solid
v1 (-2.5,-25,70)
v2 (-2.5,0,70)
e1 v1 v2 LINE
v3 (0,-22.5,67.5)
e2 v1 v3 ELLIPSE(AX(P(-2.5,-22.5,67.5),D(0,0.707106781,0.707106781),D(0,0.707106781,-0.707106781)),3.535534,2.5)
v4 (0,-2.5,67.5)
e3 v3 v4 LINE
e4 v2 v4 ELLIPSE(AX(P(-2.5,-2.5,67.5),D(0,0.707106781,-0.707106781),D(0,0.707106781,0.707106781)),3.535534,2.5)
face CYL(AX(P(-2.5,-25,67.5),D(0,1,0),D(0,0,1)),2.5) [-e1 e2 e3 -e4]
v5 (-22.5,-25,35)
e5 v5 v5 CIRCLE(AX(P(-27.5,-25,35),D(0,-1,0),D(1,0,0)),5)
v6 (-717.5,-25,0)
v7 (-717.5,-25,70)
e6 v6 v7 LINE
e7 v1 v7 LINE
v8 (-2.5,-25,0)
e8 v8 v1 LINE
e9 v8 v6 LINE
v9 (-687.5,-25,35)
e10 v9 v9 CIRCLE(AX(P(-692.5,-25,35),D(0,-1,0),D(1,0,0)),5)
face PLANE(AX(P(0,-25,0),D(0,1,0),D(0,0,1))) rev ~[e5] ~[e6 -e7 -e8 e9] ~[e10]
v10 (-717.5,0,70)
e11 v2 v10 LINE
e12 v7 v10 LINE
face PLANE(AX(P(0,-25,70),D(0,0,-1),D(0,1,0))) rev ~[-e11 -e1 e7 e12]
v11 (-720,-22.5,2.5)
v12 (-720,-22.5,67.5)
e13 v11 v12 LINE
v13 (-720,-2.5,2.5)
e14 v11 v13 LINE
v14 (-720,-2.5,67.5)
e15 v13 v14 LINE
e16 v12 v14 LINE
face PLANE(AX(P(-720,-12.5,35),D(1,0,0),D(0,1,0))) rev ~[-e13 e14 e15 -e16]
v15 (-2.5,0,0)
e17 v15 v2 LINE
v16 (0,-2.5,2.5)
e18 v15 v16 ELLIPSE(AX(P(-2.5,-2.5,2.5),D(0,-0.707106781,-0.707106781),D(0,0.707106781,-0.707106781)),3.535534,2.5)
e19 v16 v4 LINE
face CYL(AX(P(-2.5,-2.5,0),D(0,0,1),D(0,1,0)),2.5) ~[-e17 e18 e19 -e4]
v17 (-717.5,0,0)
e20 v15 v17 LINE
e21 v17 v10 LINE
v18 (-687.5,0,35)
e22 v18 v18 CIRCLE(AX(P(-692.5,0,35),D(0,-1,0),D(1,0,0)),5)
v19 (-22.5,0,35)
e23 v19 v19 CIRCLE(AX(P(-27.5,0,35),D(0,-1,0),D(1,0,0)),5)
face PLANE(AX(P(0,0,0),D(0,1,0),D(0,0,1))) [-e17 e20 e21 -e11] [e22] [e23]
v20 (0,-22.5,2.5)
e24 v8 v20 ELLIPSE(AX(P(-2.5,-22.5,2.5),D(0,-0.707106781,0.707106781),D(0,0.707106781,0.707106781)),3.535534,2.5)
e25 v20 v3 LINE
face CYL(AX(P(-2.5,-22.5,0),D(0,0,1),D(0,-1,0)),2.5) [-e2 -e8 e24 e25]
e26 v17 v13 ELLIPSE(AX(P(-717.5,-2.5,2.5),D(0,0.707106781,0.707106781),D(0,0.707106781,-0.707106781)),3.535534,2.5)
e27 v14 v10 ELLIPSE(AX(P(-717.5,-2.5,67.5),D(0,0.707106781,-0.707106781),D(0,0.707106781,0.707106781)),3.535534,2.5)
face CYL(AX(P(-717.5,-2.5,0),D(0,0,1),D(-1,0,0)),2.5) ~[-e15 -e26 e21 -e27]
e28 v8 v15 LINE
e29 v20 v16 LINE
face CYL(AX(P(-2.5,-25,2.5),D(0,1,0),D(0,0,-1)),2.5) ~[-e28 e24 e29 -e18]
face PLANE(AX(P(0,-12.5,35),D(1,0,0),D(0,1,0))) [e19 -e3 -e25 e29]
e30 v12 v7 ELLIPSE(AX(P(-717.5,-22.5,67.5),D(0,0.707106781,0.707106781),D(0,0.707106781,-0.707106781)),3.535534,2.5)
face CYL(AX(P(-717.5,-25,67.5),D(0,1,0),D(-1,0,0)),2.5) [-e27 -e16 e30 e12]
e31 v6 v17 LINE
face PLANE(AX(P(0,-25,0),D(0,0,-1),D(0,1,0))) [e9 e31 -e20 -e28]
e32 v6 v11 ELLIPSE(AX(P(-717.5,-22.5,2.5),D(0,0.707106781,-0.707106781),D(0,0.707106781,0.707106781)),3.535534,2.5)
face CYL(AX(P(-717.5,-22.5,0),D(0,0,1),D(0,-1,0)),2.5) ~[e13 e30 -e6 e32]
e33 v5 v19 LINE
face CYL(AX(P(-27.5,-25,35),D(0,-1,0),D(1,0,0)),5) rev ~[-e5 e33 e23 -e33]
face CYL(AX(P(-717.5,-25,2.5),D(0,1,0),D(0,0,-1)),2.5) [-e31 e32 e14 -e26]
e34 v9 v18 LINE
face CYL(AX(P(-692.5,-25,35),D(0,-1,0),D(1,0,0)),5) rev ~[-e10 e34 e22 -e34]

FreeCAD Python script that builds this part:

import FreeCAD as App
import Part
import Sketcher
from FreeCAD import Vector
Q = App.Units.Quantity


def edges_at(feature, points):
    """Names of the edges that pass closest to the given points."""
    edges = feature.Shape.Edges
    near = lambda p: min(range(len(edges)), key=lambda i: edges[i].distToShape(Part.Vertex(*p))[0])
    return sorted({f"Edge{near(p) + 1}" for p in points})

doc = App.newDocument("Part")
body = doc.addObject("PartDesign::Body", "Body")

# Sketch on YZ plane
sketch1 = body.newObject("Sketcher::SketchObject", "Sketch")
sketch1.AttachmentSupport = (doc.getObject("YZ_Plane"), [""])
sketch1.MapMode = "FlatFace"
sketch1.addGeometry(Part.LineSegment(Vector(-25, 70, 0), Vector(-25, 0, 0)), False)
sketch1.addGeometry(Part.LineSegment(Vector(-25, 0, 0), Vector(0, 0, 0)), False)
sketch1.addGeometry(Part.LineSegment(Vector(0, 0, 0), Vector(0, 70, 0)), False)
sketch1.addGeometry(Part.LineSegment(Vector(0, 70, 0), Vector(-25, 70, 0)), False)
sketch1.addConstraint(Sketcher.Constraint("Coincident", 0, 2, 1, 1))
sketch1.addConstraint(Sketcher.Constraint("Coincident", 1, 2, 2, 1))
sketch1.addConstraint(Sketcher.Constraint("Coincident", 2, 2, 3, 1))
sketch1.addConstraint(Sketcher.Constraint("Coincident", 3, 2, 0, 1))
sketch1.addConstraint(Sketcher.Constraint("Vertical", 0))
sketch1.addConstraint(Sketcher.Constraint("Horizontal", 1))
sketch1.addConstraint(Sketcher.Constraint("Vertical", 2))
sketch1.addConstraint(Sketcher.Constraint("Horizontal", 3))
sketch1.addConstraint(Sketcher.Constraint("Coincident", 1, 2, -1, 1))
sketch1.addConstraint(Sketcher.Constraint("DistanceX", 1, 1, 1, 2, Q("25 mm")))
sketch1.addConstraint(Sketcher.Constraint("DistanceY", 0, 2, 0, 1, Q("70 mm")))
pad1 = body.newObject("PartDesign::Pad", "Pad")
pad1.Profile = sketch1
pad1.Length = 720
pad1.Reversed = True
doc.recompute()

fillet = body.newObject("PartDesign::Fillet", "Fillet")
fillet.Base = (pad1, edges_at(pad1, [
    (0, -12.5, 0),
    (0, 0, 35),
    (0, -12.5, 70),
    (0, -25, 35),
]))
fillet.Radius = 2.5
doc.recompute()

fillet2 = body.newObject("PartDesign::Fillet", "Fillet001")
fillet2.Base = (fillet, edges_at(fillet, [
    (-720, -12.5, 0),
    (-720, 0, 35),
    (-720, -12.5, 70),
    (-720, -25, 35),
]))
fillet2.Radius = 2.5

# Sketch on XZ plane
sketch2 = body.newObject("Sketcher::SketchObject", "Sketch001")
sketch2.AttachmentSupport = (doc.getObject("XZ_Plane"), [""])
sketch2.MapMode = "FlatFace"
sketch2.AttachmentOffset = App.Placement(Vector(0, 0, 25), App.Rotation())
sketch2.addGeometry(Part.Circle(Vector(-692, 35, 0), Vector(0, 0, 1), 5), False)
sketch2.addGeometry(Part.Circle(Vector(-28, 35, 0), Vector(0, 0, 1), 5), False)
sketch2.addConstraint(Sketcher.Constraint("Equal", 0, 1))
sketch2.addConstraint(Sketcher.Constraint("Horizontal", 0, 3, 1, 3))
sketch2.addConstraint(Sketcher.Constraint("Diameter", 0, Q("10 mm")))
sketch2.addConstraint(Sketcher.Constraint("DistanceY", -1, 1, 0, 3, Q("35 mm")))
sketch2.addConstraint(Sketcher.Constraint("DistanceX", 0, 3, 1, 3, Q("665 mm")))
sketch2.addConstraint(Sketcher.Constraint("DistanceX", 0, 3, -1, 1, Q("692.5 mm")))
pocket1 = body.newObject("PartDesign::Pocket", "Pocket")
pocket1.Profile = sketch2
pocket1.Type = "ThroughAll"

doc.recompute()
